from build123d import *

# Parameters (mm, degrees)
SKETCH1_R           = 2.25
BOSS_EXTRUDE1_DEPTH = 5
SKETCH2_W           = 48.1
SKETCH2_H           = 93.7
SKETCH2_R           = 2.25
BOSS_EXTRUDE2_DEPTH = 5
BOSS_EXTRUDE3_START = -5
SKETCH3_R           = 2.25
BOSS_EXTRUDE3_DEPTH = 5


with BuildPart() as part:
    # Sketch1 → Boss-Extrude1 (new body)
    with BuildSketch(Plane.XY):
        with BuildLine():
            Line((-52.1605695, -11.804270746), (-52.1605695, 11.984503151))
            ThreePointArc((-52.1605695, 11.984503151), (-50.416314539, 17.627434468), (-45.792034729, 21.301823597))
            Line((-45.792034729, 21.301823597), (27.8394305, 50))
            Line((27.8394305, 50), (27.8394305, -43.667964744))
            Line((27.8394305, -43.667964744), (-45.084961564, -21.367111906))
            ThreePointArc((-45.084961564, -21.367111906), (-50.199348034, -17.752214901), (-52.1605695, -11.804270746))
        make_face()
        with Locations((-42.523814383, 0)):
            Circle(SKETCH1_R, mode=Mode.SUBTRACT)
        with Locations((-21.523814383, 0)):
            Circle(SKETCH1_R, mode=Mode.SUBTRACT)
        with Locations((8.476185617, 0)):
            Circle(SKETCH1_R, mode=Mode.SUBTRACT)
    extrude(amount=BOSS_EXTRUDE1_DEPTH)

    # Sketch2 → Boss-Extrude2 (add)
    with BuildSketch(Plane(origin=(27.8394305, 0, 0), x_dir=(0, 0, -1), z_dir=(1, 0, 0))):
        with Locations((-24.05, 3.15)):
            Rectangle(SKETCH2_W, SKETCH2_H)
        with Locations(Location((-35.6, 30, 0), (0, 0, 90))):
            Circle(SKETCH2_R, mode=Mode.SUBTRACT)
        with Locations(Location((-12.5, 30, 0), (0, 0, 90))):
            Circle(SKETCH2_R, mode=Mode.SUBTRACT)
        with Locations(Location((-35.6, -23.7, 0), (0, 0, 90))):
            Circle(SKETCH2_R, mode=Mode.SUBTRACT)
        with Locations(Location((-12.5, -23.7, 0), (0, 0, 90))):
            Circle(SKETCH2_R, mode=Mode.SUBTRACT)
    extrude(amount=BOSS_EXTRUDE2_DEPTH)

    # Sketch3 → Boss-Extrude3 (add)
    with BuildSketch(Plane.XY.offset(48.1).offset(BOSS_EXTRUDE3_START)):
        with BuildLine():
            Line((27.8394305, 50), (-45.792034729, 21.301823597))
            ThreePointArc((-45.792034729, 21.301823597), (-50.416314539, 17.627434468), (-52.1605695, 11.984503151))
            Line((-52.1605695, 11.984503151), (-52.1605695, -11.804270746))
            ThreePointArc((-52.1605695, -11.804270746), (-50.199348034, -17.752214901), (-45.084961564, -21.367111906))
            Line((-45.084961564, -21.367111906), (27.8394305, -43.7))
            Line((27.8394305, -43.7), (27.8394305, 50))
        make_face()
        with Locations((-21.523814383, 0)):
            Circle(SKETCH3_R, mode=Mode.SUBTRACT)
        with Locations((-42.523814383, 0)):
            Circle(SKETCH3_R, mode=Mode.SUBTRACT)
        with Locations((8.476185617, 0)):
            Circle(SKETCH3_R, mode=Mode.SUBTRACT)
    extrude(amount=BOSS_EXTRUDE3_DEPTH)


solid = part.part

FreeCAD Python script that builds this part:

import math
import FreeCAD as App
import Part
import Sketcher
Q = App.Units.Quantity


def add_polygon(sketch, points):
    """Adds a closed chain of lines whose ends are joined by coincident constraints."""
    first, n = sketch.GeometryCount, len(points)
    for a, b in zip(points, points[1:] + points[:1]):
        sketch.addGeometry(Part.LineSegment(App.Vector(*a, 0), App.Vector(*b, 0)), False)
    for i in range(n):
        sketch.addConstraint(Sketcher.Constraint("Coincident", first + i, 2, first + (i + 1) % n, 1))

doc = App.newDocument("Part")
params = doc.addObject("Spreadsheet::Sheet", "Params")
for row, (alias, value) in enumerate([
    ("sketch1_radius", "10 mm"),
    ("sketch1_diameter", "4.5 mm"),
    ("pad1_length", "5 mm"),
    ("sketch2_diameter", "4.5 mm"),
    ("sketch2_width", "93.7 mm"),
    ("sketch2_height", "48.1 mm"),
    ("pad2_length", "5 mm"),
    ("sketch3_radius", "10 mm"),
    ("sketch3_diameter", "4.5 mm"),
    ("sketch3_height", "93.7 mm"),
    ("pad3_length", "5 mm"),
], start=1):
    params.set(f"A{row}", alias)
    params.set(f"B{row}", "=" + value)
    params.setAlias(f"B{row}", alias)

body = doc.addObject("PartDesign::Body", "Body")

sketch1 = body.newObject("Sketcher::SketchObject", "Sketch")
sketch1.AttachmentSupport = (doc.getObject("XY_Plane"), [""])
sketch1.MapMode = "FlatFace"
sketch1.addGeometry([
    Part.LineSegment(App.Vector(-52.2, 12, 0), App.Vector(-52.2, -11.8, 0)),
    Part.ArcOfCircle(Part.Circle(App.Vector(-42.2, -11.8, 0), App.Vector(0, 0, 1), 10), math.radians(-180), math.radians(-107)),
    Part.LineSegment(App.Vector(-45.1, -21.4, 0), App.Vector(27.8, -43.7, 0)),
    Part.LineSegment(App.Vector(27.8, -43.7, 0), App.Vector(27.8, 50, 0)),
    Part.LineSegment(App.Vector(27.8, 50, 0), App.Vector(-45.8, 21.3, 0)),
    Part.ArcOfCircle(Part.Circle(App.Vector(-42.2, 12, 0), App.Vector(0, 0, 1), 10), math.radians(111), math.radians(180)),
    Part.Circle(App.Vector(8.5, 0, 0), App.Vector(0, 0, 1), 2.2),
    Part.Circle(App.Vector(-21.5, 0, 0), App.Vector(0, 0, 1), 2.2),
    Part.Circle(App.Vector(-42.5, 0, 0), App.Vector(0, 0, 1), 2.2),
], False)
sketch1.addConstraint([
    Sketcher.Constraint("Tangent", 0, 2, 1, 1),
    Sketcher.Constraint("Tangent", 1, 2, 2, 1),
    Sketcher.Constraint("Coincident", 2, 2, 3, 1),
    Sketcher.Constraint("Coincident", 3, 2, 4, 1),
    Sketcher.Constraint("Tangent", 4, 2, 5, 1),
    Sketcher.Constraint("Tangent", 5, 2, 0, 1),
    Sketcher.Constraint("Vertical", 0),
    Sketcher.Constraint("Vertical", 3),
    Sketcher.Constraint("Equal", 1, 5),
    Sketcher.Constraint("Equal", 6, 7),
    Sketcher.Constraint("Equal", 7, 8),
    Sketcher.Constraint("PointOnObject", 6, 3, -1),
    Sketcher.Constraint("PointOnObject", 7, 3, -1),
    Sketcher.Constraint("PointOnObject", 8, 3, -1),
    Sketcher.Constraint("Radius", 1, Q("10 mm")),
    Sketcher.Constraint("Diameter", 6, Q("4.5 mm")),
    Sketcher.Constraint("DistanceY", -1, 1, 3, 2, Q("50 mm")),
    Sketcher.Constraint("DistanceX", 7, 3, 6, 3, Q("30 mm")),
    Sketcher.Constraint("DistanceX", 8, 3, 7, 3, Q("21 mm")),
    Sketcher.Constraint("DistanceX", 1, 3, 2, 2, Q("70 mm")),
    Sketcher.Constraint("Distance", 2, Q("76.258082 mm")),
    Sketcher.Constraint("Distance", 4, Q("79.026439 mm")),
    Sketcher.Constraint("DistanceY", 0, 2, 0, 1, Q("23.788774 mm")),
    Sketcher.Constraint("DistanceX", 1, 3, -1, 1, Q("42.160569 mm")),
    Sketcher.Constraint("DistanceX", 4, 2, 8, 3, Q("3.26822 mm")),
])
sketch1.setExpression("Constraints[14]", "Params.sketch1_radius")
sketch1.setExpression("Constraints[15]", "Params.sketch1_diameter")
pad1 = body.newObject("PartDesign::Pad", "Pad")
pad1.Profile = sketch1
pad1.setExpression("Length", "Params.pad1_length")

sketch2 = body.newObject("Sketcher::SketchObject", "Sketch001")
sketch2.AttachmentSupport = (doc.getObject("YZ_Plane"), [""])
sketch2.MapMode = "FlatFace"
sketch2.AttachmentOffset = App.Placement(App.Vector(0, 0, 27.83943), App.Rotation())
add_polygon(sketch2, [(50, 48.1), (-43.7, 48.1), (-43.7, 0), (50, 0)])
sketch2.addGeometry(Part.Circle(App.Vector(-23.7, 35.6, 0), App.Vector(0, 0, 1), 2.2), False)
sketch2.addGeometry(Part.Circle(App.Vector(-23.7, 12.5, 0), App.Vector(0, 0, 1), 2.2), False)
sketch2.addGeometry(Part.Circle(App.Vector(30, 35.6, 0), App.Vector(0, 0, 1), 2.2), False)
sketch2.addGeometry(Part.Circle(App.Vector(30, 12.5, 0), App.Vector(0, 0, 1), 2.2), False)
sketch2.addConstraint([
    Sketcher.Constraint("Horizontal", 0),
    Sketcher.Constraint("Vertical", 1),
    Sketcher.Constraint("Horizontal", 2),
    Sketcher.Constraint("Vertical", 3),
    Sketcher.Constraint("Equal", 4, 5),
    Sketcher.Constraint("Equal", 5, 6),
    Sketcher.Constraint("Equal", 6, 7),
    Sketcher.Constraint("PointOnObject", 1, 2, -1),
    Sketcher.Constraint("Horizontal", 4, 3, 6, 3),
    Sketcher.Constraint("Horizontal", 5, 3, 7, 3),
    Sketcher.Constraint("Vertical", 4, 3, 5, 3),
    Sketcher.Constraint("Vertical", 6, 3, 7, 3),
    Sketcher.Constraint("Diameter", 4, Q("4.5 mm")),
    Sketcher.Constraint("DistanceX", 0, 2, 0, 1, Q("93.7 mm")),
    Sketcher.Constraint("DistanceY", 1, 2, 1, 1, Q("48.1 mm")),
    Sketcher.Constraint("DistanceX", -1, 1, 6, 3, Q("30 mm")),
    Sketcher.Constraint("DistanceX", -1, 1, 2, 2, Q("50 mm")),
    Sketcher.Constraint("DistanceX", 0, 2, 4, 3, Q("20 mm")),
    Sketcher.Constraint("DistanceY", -1, 1, 4, 3, Q("35.6 mm")),
    Sketcher.Constraint("DistanceY", -1, 1, 5, 3, Q("12.5 mm")),
])
sketch2.setExpression("Constraints[16]", "Params.sketch2_diameter")
sketch2.setExpression("Constraints[17]", "Params.sketch2_width")
sketch2.setExpression("Constraints[18]", "Params.sketch2_height")
pad2 = body.newObject("PartDesign::Pad", "Pad001")
pad2.Profile = sketch2
pad2.setExpression("Length", "Params.pad2_length")

sketch3 = body.newObject("Sketcher::SketchObject", "Sketch002")
sketch3.AttachmentSupport = (doc.getObject("XY_Plane"), [""])
sketch3.MapMode = "FlatFace"
sketch3.AttachmentOffset = App.Placement(App.Vector(0, 0, 43.1), App.Rotation())
sketch3.addGeometry([
    Part.LineSegment(App.Vector(27.8, 50, 0), App.Vector(-45.8, 21.3, 0)),
    Part.ArcOfCircle(Part.Circle(App.Vector(-42.2, 12, 0), App.Vector(0, 0, 1), 10), math.radians(111), math.radians(180)),
    Part.LineSegment(App.Vector(-52.2, 12, 0), App.Vector(-52.2, -11.8, 0)),
    Part.ArcOfCircle(Part.Circle(App.Vector(-42.2, -11.8, 0), App.Vector(0, 0, 1), 10), math.radians(-180), math.radians(-107)),
    Part.LineSegment(App.Vector(-45.1, -21.4, 0), App.Vector(27.8, -43.7, 0)),
    Part.LineSegment(App.Vector(27.8, -43.7, 0), App.Vector(27.8, 50, 0)),
    Part.Circle(App.Vector(-42.5, 0, 0), App.Vector(0, 0, 1), 2.2),
    Part.Circle(App.Vector(-21.5, 0, 0), App.Vector(0, 0, 1), 2.2),
    Part.Circle(App.Vector(8.5, 0, 0), App.Vector(0, 0, 1), 2.2),
], False)
sketch3.addConstraint([
    Sketcher.Constraint("Tangent", 0, 2, 1, 1),
    Sketcher.Constraint("Tangent", 1, 2, 2, 1),
    Sketcher.Constraint("Tangent", 2, 2, 3, 1),
    Sketcher.Constraint("Coincident", 3, 2, 4, 1),
    Sketcher.Constraint("Coincident", 4, 2, 5, 1),
    Sketcher.Constraint("Coincident", 5, 2, 0, 1),
    Sketcher.Constraint("Vertical", 2),
    Sketcher.Constraint("Vertical", 5),
    Sketcher.Constraint("Equal", 1, 3),
    Sketcher.Constraint("Equal", 6, 7),
    Sketcher.Constraint("Equal", 7, 8),
    Sketcher.Constraint("PointOnObject", 6, 3, -1),
    Sketcher.Constraint("PointOnObject", 7, 3, -1),
    Sketcher.Constraint("PointOnObject", 8, 3, -1),
    Sketcher.Constraint("Radius", 1, Q("10 mm")),
    Sketcher.Constraint("Diameter", 6, Q("4.5 mm")),
    Sketcher.Constraint("DistanceY", 5, 1, 5, 2, Q("93.7 mm")),
    Sketcher.Constraint("DistanceY", -1, 1, 5, 2, Q("50 mm")),
    Sketcher.Constraint("DistanceX", 6, 3, 7, 3, Q("21 mm")),
    Sketcher.Constraint("DistanceX", 7, 3, 8, 3, Q("30 mm")),
    Sketcher.Constraint("DistanceX", 3, 3, 4, 2, Q("70 mm")),
    Sketcher.Constraint("Distance", 0, Q("79.026439 mm")),
    Sketcher.Constraint("DistanceY", 2, 2, 2, 1, Q("23.788774 mm")),
    Sketcher.Constraint("DistanceX", 1, 3, -1, 1, Q("42.160569 mm")),
    Sketcher.Constraint("DistanceX", 3, 2, -1, 1, Q("45.084962 mm")),
    Sketcher.Constraint("DistanceX", 0, 2, 6, 3, Q("3.26822 mm")),
])
sketch3.setExpression("Constraints[14]", "Params.sketch3_radius")
sketch3.setExpression("Constraints[15]", "Params.sketch3_diameter")
sketch3.setExpression("Constraints[16]", "Params.sketch3_height")
pad3 = body.newObject("PartDesign::Pad", "Pad002")
pad3.Profile = sketch3
pad3.setExpression("Length", "Params.pad3_length")

doc.recompute()
